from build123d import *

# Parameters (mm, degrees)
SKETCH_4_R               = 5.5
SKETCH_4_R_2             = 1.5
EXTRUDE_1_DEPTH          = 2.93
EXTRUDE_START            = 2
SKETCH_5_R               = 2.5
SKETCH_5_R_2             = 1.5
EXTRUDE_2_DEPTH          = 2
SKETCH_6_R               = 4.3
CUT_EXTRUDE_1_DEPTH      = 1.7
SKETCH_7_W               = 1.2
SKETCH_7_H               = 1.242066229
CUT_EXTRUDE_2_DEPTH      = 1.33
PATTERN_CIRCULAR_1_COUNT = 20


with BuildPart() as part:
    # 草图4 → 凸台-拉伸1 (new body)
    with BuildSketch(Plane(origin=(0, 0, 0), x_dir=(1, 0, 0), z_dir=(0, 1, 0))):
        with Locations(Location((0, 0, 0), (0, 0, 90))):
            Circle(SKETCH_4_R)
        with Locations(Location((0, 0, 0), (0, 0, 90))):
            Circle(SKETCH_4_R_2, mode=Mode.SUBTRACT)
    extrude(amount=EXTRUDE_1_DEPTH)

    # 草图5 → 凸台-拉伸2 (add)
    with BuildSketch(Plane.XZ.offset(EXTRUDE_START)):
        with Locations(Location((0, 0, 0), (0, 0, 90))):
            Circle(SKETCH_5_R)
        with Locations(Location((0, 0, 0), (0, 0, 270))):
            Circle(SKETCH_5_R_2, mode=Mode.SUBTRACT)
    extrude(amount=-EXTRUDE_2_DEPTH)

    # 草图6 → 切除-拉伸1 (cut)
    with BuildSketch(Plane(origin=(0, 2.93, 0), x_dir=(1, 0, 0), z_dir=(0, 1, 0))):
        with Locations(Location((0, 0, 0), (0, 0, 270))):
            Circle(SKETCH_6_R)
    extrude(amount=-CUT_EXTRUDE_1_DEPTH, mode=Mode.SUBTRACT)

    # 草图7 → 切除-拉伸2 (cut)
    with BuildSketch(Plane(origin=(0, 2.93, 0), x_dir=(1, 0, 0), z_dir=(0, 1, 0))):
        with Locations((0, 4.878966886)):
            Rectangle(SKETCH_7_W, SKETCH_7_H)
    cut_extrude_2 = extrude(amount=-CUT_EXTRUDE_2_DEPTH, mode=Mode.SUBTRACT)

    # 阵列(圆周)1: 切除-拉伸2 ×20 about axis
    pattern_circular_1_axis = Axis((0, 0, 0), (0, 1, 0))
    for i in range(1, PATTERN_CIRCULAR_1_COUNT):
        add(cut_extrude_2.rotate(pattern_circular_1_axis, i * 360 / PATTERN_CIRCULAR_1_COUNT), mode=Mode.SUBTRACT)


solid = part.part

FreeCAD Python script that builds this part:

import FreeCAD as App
import Part
import Sketcher
from FreeCAD import Vector
Q = App.Units.Quantity

doc = App.newDocument("Part")
body = doc.addObject("PartDesign::Body", "Body")

sketch1 = body.newObject("Sketcher::SketchObject", "Sketch")
sketch1.AttachmentSupport = (doc.getObject("XZ_Plane"), [""])
sketch1.MapMode = "FlatFace"
sketch1.addGeometry([
    Part.Circle(Vector(0, 0, 0), Vector(0, 0, 1), 5.5),
    Part.Circle(Vector(0, 0, 0), Vector(0, 0, 1), 1.5),
], False)
sketch1.addConstraint([
    Sketcher.Constraint("Coincident", 0, 3, -1, 1),
    Sketcher.Constraint("Coincident", 1, 3, -1, 1),
    Sketcher.Constraint("Diameter", 0, Q("11 mm")),
    Sketcher.Constraint("Diameter", 1, Q("3 mm")),
])
pad1 = body.newObject("PartDesign::Pad", "Pad")
pad1.Profile = sketch1
pad1.Length = 2.93
pad1.Reversed = True

sketch2 = body.newObject("Sketcher::SketchObject", "Sketch001")
sketch2.AttachmentSupport = (doc.getObject("XZ_Plane"), [""])
sketch2.MapMode = "FlatFace"
sketch2.AttachmentOffset = App.Placement(Vector(0, 0, 2), App.Rotation())
sketch2.addGeometry([
    Part.Circle(Vector(0, 0, 0), Vector(0, 0, 1), 2.5),
    Part.Circle(Vector(0, 0, 0), Vector(0, 0, 1), 1.5),
], False)
sketch2.addConstraint([
    Sketcher.Constraint("Coincident", 0, 3, -1, 1),
    Sketcher.Constraint("Coincident", 1, 3, -1, 1),
    Sketcher.Constraint("Diameter", 0, Q("5 mm")),
    Sketcher.Constraint("Diameter", 1, Q("3 mm")),
])
pad2 = body.newObject("PartDesign::Pad", "Pad001")
pad2.Profile = sketch2
pad2.Length = 2
pad2.Reversed = True

sketch3 = body.newObject("Sketcher::SketchObject", "Sketch002")
sketch3.AttachmentSupport = (doc.getObject("XZ_Plane"), [""])
sketch3.MapMode = "FlatFace"
sketch3.AttachmentOffset = App.Placement(Vector(0, 0, -2.93), App.Rotation())
sketch3.addGeometry(Part.Circle(Vector(0, 0, 0), Vector(0, 0, 1), 4.3), False)
sketch3.addConstraint([
    Sketcher.Constraint("Coincident", 0, 3, -1, 1),
    Sketcher.Constraint("Diameter", 0, Q("8.6 mm")),
])
pocket1 = body.newObject("PartDesign::Pocket", "Pocket")
pocket1.Profile = sketch3
pocket1.Length = 1.7
pocket1.Reversed = True

sketch4 = body.newObject("Sketcher::SketchObject", "Sketch003")
sketch4.AttachmentSupport = (doc.getObject("XZ_Plane"), [""])
sketch4.MapMode = "FlatFace"
sketch4.AttachmentOffset = App.Placement(Vector(0, 0, -2.93), App.Rotation())
sketch4.addGeometry([
    Part.LineSegment(Vector(-0.6, -5.5, 0), Vector(-0.6, -4.3, 0)),
    Part.LineSegment(Vector(-0.6, -4.3, 0), Vector(0.6, -4.3, 0)),
    Part.LineSegment(Vector(0.6, -4.3, 0), Vector(0.6, -5.5, 0)),
    Part.LineSegment(Vector(0.6, -5.5, 0), Vector(-0.6, -5.5, 0)),
], False)
sketch4.addConstraint([
    Sketcher.Constraint("Coincident", 0, 2, 1, 1),
    Sketcher.Constraint("Coincident", 1, 2, 2, 1),
    Sketcher.Constraint("Coincident", 2, 2, 3, 1),
    Sketcher.Constraint("Coincident", 3, 2, 0, 1),
    Sketcher.Constraint("Vertical", 0),
    Sketcher.Constraint("Horizontal", 1),
    Sketcher.Constraint("Vertical", 2),
    Sketcher.Constraint("Horizontal", 3),
    Sketcher.Constraint("DistanceX", 1, 1, 1, 2, Q("1.2 mm")),
    Sketcher.Constraint("DistanceX", 0, 2, -1, 1, Q("0.6 mm")),
    Sketcher.Constraint("DistanceY", 2, 2, -1, 1, Q("5.5 mm")),
    Sketcher.Constraint("DistanceY", 0, 1, 0, 2, Q("1.242066 mm")),
])
pocket2 = body.newObject("PartDesign::Pocket", "Pocket001")
pocket2.Profile = sketch4
pocket2.Length = 1.33
pocket2.Reversed = True
doc.recompute()

polarpattern = body.newObject("PartDesign::PolarPattern", "PolarPattern")
polarpattern.Originals = [pocket2]
polarpattern.Axis = (doc.getObject("Y_Axis"), [""])
polarpattern.Angle = 360
polarpattern.Occurrences = 20
body.Tip = polarpattern

doc.recompute()
